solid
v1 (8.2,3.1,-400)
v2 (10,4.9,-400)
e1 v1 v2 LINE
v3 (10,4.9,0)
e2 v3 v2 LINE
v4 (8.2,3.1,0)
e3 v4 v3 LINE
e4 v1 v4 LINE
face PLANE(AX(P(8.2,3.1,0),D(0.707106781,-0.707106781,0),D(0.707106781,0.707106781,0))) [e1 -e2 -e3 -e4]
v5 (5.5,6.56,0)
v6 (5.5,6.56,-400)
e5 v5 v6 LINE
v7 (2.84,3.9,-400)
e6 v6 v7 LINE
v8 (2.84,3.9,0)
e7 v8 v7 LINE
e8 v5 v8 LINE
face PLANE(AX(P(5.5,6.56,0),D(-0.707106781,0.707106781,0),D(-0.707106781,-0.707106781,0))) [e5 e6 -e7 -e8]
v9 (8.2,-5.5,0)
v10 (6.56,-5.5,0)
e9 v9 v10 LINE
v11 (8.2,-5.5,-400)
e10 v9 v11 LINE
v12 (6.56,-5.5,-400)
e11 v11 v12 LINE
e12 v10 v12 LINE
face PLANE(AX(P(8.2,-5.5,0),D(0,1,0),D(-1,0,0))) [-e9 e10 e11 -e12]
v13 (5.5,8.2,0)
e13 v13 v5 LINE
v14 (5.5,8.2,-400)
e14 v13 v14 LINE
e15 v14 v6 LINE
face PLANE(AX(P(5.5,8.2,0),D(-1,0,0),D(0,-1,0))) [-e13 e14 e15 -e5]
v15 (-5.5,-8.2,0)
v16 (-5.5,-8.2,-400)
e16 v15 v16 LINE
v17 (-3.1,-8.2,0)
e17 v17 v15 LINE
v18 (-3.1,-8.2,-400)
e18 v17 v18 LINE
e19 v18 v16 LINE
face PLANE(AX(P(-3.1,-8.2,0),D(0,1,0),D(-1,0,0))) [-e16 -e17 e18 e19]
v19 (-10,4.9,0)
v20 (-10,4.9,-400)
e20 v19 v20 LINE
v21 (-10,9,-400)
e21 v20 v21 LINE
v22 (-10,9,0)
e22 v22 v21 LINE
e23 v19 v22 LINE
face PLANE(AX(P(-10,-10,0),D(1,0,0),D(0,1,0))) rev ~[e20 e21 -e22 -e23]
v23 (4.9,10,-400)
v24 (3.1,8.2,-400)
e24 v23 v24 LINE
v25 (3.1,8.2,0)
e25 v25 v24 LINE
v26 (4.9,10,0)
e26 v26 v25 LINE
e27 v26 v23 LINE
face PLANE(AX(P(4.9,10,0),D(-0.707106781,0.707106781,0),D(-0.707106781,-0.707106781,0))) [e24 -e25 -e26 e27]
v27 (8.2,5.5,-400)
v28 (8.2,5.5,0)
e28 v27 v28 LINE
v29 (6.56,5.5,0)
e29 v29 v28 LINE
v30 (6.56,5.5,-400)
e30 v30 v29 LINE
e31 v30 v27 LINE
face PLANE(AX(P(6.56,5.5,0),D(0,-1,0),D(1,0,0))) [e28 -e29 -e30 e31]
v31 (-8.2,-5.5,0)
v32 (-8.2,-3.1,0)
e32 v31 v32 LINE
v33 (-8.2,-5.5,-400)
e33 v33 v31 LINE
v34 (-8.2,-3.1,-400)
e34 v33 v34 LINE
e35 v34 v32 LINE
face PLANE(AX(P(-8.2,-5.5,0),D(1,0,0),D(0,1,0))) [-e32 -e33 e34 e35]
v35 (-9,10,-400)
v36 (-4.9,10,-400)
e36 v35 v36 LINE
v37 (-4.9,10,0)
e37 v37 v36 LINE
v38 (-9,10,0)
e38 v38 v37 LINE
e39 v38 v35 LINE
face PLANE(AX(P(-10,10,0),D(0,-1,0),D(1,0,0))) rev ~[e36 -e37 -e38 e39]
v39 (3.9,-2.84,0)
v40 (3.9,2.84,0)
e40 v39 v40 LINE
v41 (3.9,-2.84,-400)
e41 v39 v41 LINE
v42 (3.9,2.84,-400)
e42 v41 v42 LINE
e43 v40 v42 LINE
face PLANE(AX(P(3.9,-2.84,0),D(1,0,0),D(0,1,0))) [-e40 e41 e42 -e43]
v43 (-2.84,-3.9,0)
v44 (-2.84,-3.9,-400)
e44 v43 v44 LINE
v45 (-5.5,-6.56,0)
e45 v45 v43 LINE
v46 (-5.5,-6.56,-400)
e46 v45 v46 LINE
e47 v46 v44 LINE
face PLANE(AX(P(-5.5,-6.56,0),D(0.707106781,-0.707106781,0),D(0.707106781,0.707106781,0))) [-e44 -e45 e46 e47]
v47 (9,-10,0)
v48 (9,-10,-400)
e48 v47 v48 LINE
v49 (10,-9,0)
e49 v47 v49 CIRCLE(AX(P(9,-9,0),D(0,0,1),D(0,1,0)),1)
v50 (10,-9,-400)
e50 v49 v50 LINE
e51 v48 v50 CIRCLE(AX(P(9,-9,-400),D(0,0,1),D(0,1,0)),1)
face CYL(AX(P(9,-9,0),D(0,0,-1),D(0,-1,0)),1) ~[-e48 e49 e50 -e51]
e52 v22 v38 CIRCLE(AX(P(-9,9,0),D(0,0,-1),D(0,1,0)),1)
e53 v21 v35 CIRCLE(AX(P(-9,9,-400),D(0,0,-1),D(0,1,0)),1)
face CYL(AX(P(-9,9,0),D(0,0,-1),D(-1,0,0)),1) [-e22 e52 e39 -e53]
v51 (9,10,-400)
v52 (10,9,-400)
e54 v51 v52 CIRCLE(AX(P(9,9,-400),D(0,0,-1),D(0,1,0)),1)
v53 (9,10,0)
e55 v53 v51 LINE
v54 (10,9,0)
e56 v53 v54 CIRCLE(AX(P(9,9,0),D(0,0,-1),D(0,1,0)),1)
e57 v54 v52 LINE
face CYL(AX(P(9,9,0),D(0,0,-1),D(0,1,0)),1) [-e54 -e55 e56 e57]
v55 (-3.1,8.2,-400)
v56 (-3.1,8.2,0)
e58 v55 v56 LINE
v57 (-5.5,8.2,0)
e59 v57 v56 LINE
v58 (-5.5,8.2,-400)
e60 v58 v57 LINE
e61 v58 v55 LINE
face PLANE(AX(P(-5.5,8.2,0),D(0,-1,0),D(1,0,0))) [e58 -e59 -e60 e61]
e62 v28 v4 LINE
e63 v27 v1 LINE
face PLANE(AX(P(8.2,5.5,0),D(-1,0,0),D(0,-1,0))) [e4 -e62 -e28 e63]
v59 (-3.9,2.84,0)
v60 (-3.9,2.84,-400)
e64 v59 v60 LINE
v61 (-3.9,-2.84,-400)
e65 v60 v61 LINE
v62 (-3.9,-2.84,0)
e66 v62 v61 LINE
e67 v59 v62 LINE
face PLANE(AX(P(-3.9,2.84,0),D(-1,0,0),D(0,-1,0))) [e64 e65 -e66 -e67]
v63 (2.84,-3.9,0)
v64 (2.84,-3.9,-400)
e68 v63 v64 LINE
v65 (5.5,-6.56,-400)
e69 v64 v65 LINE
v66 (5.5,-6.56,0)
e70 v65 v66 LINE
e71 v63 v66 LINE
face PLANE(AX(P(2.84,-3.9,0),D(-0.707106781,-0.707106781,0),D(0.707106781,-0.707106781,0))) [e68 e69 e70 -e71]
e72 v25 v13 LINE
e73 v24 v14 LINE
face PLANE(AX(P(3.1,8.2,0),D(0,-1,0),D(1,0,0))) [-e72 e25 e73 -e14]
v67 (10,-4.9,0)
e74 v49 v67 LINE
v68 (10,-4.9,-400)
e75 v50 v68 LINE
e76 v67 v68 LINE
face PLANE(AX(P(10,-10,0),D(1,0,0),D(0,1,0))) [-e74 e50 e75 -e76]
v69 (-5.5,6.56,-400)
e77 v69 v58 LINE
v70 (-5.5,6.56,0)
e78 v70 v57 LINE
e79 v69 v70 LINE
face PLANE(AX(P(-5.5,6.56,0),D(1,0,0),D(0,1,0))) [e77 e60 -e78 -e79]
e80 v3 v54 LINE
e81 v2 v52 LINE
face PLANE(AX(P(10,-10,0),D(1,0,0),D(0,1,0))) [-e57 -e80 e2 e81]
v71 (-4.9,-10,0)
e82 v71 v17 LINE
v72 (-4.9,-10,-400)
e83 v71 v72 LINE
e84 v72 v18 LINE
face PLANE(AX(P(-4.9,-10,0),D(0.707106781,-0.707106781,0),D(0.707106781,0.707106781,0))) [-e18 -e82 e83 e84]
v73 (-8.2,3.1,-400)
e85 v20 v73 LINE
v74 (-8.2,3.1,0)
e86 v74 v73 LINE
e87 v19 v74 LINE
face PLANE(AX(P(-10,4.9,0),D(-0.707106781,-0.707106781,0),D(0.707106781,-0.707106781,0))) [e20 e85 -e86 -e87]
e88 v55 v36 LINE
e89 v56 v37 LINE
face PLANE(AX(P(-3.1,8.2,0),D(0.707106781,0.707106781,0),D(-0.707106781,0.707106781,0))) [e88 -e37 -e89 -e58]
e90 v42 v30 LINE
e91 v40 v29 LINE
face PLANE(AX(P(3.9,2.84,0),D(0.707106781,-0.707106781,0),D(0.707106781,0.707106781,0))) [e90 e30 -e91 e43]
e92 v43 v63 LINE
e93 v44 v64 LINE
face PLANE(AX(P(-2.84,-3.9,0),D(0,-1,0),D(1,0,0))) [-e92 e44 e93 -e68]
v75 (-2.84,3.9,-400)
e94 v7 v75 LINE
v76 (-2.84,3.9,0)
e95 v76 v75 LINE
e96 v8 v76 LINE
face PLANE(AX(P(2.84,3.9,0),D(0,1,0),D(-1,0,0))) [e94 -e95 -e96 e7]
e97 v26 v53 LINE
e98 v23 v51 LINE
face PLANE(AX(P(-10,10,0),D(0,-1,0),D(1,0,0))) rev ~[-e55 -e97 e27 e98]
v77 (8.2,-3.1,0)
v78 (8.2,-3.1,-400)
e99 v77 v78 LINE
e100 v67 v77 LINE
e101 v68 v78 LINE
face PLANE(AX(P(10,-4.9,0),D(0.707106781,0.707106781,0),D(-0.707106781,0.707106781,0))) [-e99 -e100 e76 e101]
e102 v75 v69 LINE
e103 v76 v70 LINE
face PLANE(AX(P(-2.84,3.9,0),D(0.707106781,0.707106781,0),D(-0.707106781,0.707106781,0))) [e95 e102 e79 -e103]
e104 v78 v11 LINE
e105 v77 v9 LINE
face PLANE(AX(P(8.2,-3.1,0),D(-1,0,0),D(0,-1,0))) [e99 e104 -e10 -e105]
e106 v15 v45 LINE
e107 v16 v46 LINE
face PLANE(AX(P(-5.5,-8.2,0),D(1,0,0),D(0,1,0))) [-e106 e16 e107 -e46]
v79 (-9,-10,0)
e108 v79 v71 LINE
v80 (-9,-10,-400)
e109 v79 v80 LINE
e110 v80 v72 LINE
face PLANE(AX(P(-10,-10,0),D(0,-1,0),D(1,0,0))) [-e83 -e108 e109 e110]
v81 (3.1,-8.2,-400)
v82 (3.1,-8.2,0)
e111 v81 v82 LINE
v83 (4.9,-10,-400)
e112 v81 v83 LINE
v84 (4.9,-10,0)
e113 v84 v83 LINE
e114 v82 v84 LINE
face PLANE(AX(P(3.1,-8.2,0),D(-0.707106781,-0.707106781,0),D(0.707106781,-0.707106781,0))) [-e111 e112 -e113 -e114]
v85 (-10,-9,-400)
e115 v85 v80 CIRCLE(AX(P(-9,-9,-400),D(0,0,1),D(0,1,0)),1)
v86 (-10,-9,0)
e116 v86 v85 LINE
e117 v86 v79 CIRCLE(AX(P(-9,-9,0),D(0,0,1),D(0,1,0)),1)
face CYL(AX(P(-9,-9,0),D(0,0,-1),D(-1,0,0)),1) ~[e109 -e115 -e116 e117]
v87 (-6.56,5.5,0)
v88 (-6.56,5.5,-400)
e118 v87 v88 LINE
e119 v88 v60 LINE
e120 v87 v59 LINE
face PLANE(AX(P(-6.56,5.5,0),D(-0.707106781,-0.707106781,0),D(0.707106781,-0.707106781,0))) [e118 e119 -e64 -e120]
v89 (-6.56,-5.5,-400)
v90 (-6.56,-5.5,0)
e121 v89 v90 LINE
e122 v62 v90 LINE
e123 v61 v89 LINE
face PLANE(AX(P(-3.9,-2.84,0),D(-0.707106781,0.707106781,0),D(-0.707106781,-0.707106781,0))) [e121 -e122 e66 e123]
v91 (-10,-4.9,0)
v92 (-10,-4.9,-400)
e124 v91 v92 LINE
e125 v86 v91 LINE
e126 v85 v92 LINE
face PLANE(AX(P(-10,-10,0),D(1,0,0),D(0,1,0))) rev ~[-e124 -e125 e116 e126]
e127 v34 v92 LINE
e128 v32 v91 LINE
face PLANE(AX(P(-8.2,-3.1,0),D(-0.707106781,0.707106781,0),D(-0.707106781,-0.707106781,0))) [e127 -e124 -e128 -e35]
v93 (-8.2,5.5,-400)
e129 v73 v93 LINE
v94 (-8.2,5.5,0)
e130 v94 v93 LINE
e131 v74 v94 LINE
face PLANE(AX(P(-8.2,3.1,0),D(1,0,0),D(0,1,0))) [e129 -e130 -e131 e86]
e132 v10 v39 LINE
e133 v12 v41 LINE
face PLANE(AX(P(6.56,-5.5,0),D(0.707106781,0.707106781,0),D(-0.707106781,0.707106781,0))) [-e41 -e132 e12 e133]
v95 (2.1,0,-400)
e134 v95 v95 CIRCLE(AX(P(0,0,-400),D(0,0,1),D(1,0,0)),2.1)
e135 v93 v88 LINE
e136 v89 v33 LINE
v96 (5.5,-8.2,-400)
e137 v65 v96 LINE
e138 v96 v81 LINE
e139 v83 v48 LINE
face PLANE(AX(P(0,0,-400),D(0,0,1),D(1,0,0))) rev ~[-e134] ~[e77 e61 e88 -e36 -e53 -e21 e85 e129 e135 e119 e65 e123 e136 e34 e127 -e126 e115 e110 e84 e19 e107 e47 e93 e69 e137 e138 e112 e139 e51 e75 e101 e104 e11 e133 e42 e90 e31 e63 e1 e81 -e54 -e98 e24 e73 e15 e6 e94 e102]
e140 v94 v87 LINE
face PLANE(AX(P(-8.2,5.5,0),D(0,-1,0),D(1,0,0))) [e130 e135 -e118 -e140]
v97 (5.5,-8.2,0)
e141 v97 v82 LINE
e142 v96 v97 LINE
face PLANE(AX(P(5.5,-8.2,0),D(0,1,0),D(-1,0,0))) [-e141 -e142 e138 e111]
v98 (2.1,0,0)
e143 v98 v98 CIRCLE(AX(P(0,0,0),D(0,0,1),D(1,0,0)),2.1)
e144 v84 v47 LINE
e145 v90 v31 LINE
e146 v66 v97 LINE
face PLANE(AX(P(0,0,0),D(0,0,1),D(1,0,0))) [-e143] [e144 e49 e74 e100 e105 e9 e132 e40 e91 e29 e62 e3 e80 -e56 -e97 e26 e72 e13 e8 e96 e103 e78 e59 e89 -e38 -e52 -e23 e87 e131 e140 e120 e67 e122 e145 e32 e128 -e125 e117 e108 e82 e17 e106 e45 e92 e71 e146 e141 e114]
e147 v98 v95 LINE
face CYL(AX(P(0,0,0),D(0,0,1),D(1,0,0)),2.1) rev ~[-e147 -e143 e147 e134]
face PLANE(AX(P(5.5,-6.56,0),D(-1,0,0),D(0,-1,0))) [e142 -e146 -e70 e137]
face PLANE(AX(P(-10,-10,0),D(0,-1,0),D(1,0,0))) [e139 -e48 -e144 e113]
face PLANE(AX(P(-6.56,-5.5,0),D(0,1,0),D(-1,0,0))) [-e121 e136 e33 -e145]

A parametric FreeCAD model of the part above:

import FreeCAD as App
import Part
import Sketcher

V = App.Vector
Q = App.Units.Quantity


def edges_at(feature, points):
    """Names of the edges that pass closest to the given points."""
    edges = feature.Shape.Edges
    near = lambda p: min(range(len(edges)), key=lambda i: edges[i].distToShape(Part.Vertex(*p))[0])
    return sorted({f"Edge{near(p) + 1}" for p in points})


def add_polygon(sketch, points):
    """Adds a closed chain of lines whose ends are joined by coincident constraints."""
    first, n = sketch.GeometryCount, len(points)
    for a, b in zip(points, points[1:] + points[:1]):
        sketch.addGeometry(Part.LineSegment(App.Vector(*a, 0), App.Vector(*b, 0)), False)
    for i in range(n):
        sketch.addConstraint(Sketcher.Constraint("Coincident", first + i, 2, first + (i + 1) % n, 1))

doc = App.newDocument("Part")
body = doc.addObject("PartDesign::Body", "Body")

# Sketch on XY plane
sketch1 = body.newObject("Sketcher::SketchObject", "Sketch")
sketch1.AttachmentSupport = (doc.getObject("XY_Plane"), [""])
sketch1.MapMode = "FlatFace"
add_polygon(sketch1, [(-10, 10), (-10, -10), (10, -10), (10, 10)])  # lines 0-3
sketch1.addConstraint(Sketcher.Constraint("Vertical", 0))
sketch1.addConstraint(Sketcher.Constraint("Horizontal", 1))
sketch1.addConstraint(Sketcher.Constraint("Vertical", 2))
sketch1.addConstraint(Sketcher.Constraint("Horizontal", 3))
sketch1.addConstraint(Sketcher.Constraint("Symmetric", 0, 2, 2, 2, -1, 1))
sketch1.addConstraint(Sketcher.Constraint("Equal", 3, 0))
sketch1.addConstraint(Sketcher.Constraint("DistanceX", 1, 1, 1, 2, Q("20 mm")))
pad1 = body.newObject("PartDesign::Pad", "Pad")
pad1.Profile = sketch1
pad1.Length = 400
pad1.Reversed = True

# Sketch on XY plane
sketch2 = body.newObject("Sketcher::SketchObject", "Sketch001")
sketch2.AttachmentSupport = (doc.getObject("XY_Plane"), [""])
sketch2.MapMode = "FlatFace"
add_polygon(sketch2, [(-4.9, 10), (-3.1, 8.2), (-5.5, 8.2), (-5.5, 6.6), (-2.8, 3.9), (2.8, 3.9), (5.5, 6.6), (5.5, 8.2), (3.1, 8.2), (4.9, 10)])  # lines 0-9
sketch2.addConstraint(Sketcher.Constraint("Horizontal", 1))
sketch2.addConstraint(Sketcher.Constraint("Vertical", 2))
sketch2.addConstraint(Sketcher.Constraint("Horizontal", 4))
sketch2.addConstraint(Sketcher.Constraint("Vertical", 6))
sketch2.addConstraint(Sketcher.Constraint("Horizontal", 7))
sketch2.addConstraint(Sketcher.Constraint("Horizontal", 9))
sketch2.addConstraint(Sketcher.Constraint("Symmetric", 2, 2, 5, 2, -2))
sketch2.addConstraint(Sketcher.Constraint("Symmetric", 0, 2, 7, 2, -2))
sketch2.addConstraint(Sketcher.Constraint("Parallel", 0, 3))
sketch2.addConstraint(Sketcher.Constraint("Perpendicular", 3, 5))
sketch2.addConstraint(Sketcher.Constraint("Parallel", 5, 8))
sketch2.addConstraint(Sketcher.Constraint("Equal", 3, 5))
sketch2.addConstraint(Sketcher.Constraint("DistanceX", 1, 2, 1, 1, Q("2.4 mm")))
sketch2.addConstraint(Sketcher.Constraint("DistanceX", 9, 2, 9, 1, Q("9.8 mm")))
sketch2.addConstraint(Sketcher.Constraint("DistanceY", -1, 1, 8, 2, Q("10 mm")))
sketch2.addConstraint(Sketcher.Constraint("DistanceX", 2, 2, 5, 2, Q("11 mm")))
sketch2.addConstraint(Sketcher.Constraint("DistanceX", 4, 1, 4, 2, Q("5.68 mm")))
sketch2.addConstraint(Sketcher.Constraint("DistanceY", 2, 2, 2, 1, Q("1.64 mm")))
pocket1 = body.newObject("PartDesign::Pocket", "Pocket")
pocket1.Profile = sketch2
pocket1.Length = 802.499844
pocket1.Midplane = True
doc.recompute()

polarpattern = body.newObject("PartDesign::PolarPattern", "PolarPattern")
polarpattern.Originals = [pocket1]
polarpattern.Axis = (doc.getObject("Z_Axis"), [""])
polarpattern.Angle = 360
polarpattern.Occurrences = 4
body.Tip = polarpattern

# Sketch on XY plane
sketch3 = body.newObject("Sketcher::SketchObject", "Sketch002")
sketch3.AttachmentSupport = (doc.getObject("XY_Plane"), [""])
sketch3.MapMode = "FlatFace"
sketch3.addGeometry(Part.Circle(V(0, 0, 0), V(0, 0, 1), 2.1), False)
sketch3.addConstraint(Sketcher.Constraint("Coincident", 0, 3, -1, 1))
sketch3.addConstraint(Sketcher.Constraint("Diameter", 0, Q("4.2 mm")))
pocket2 = body.newObject("PartDesign::Pocket", "Pocket001")
pocket2.Profile = sketch3
pocket2.Type = "ThroughAll"
doc.recompute()

fillet = body.newObject("PartDesign::Fillet", "Fillet")
fillet.Base = (pocket2, edges_at(pocket2, [
    (-10, 10, -200),
    (10, 10, -200),
    (10, -10, -200),
    (-10, -10, -200),
]))
fillet.Radius = 1

doc.recompute()
